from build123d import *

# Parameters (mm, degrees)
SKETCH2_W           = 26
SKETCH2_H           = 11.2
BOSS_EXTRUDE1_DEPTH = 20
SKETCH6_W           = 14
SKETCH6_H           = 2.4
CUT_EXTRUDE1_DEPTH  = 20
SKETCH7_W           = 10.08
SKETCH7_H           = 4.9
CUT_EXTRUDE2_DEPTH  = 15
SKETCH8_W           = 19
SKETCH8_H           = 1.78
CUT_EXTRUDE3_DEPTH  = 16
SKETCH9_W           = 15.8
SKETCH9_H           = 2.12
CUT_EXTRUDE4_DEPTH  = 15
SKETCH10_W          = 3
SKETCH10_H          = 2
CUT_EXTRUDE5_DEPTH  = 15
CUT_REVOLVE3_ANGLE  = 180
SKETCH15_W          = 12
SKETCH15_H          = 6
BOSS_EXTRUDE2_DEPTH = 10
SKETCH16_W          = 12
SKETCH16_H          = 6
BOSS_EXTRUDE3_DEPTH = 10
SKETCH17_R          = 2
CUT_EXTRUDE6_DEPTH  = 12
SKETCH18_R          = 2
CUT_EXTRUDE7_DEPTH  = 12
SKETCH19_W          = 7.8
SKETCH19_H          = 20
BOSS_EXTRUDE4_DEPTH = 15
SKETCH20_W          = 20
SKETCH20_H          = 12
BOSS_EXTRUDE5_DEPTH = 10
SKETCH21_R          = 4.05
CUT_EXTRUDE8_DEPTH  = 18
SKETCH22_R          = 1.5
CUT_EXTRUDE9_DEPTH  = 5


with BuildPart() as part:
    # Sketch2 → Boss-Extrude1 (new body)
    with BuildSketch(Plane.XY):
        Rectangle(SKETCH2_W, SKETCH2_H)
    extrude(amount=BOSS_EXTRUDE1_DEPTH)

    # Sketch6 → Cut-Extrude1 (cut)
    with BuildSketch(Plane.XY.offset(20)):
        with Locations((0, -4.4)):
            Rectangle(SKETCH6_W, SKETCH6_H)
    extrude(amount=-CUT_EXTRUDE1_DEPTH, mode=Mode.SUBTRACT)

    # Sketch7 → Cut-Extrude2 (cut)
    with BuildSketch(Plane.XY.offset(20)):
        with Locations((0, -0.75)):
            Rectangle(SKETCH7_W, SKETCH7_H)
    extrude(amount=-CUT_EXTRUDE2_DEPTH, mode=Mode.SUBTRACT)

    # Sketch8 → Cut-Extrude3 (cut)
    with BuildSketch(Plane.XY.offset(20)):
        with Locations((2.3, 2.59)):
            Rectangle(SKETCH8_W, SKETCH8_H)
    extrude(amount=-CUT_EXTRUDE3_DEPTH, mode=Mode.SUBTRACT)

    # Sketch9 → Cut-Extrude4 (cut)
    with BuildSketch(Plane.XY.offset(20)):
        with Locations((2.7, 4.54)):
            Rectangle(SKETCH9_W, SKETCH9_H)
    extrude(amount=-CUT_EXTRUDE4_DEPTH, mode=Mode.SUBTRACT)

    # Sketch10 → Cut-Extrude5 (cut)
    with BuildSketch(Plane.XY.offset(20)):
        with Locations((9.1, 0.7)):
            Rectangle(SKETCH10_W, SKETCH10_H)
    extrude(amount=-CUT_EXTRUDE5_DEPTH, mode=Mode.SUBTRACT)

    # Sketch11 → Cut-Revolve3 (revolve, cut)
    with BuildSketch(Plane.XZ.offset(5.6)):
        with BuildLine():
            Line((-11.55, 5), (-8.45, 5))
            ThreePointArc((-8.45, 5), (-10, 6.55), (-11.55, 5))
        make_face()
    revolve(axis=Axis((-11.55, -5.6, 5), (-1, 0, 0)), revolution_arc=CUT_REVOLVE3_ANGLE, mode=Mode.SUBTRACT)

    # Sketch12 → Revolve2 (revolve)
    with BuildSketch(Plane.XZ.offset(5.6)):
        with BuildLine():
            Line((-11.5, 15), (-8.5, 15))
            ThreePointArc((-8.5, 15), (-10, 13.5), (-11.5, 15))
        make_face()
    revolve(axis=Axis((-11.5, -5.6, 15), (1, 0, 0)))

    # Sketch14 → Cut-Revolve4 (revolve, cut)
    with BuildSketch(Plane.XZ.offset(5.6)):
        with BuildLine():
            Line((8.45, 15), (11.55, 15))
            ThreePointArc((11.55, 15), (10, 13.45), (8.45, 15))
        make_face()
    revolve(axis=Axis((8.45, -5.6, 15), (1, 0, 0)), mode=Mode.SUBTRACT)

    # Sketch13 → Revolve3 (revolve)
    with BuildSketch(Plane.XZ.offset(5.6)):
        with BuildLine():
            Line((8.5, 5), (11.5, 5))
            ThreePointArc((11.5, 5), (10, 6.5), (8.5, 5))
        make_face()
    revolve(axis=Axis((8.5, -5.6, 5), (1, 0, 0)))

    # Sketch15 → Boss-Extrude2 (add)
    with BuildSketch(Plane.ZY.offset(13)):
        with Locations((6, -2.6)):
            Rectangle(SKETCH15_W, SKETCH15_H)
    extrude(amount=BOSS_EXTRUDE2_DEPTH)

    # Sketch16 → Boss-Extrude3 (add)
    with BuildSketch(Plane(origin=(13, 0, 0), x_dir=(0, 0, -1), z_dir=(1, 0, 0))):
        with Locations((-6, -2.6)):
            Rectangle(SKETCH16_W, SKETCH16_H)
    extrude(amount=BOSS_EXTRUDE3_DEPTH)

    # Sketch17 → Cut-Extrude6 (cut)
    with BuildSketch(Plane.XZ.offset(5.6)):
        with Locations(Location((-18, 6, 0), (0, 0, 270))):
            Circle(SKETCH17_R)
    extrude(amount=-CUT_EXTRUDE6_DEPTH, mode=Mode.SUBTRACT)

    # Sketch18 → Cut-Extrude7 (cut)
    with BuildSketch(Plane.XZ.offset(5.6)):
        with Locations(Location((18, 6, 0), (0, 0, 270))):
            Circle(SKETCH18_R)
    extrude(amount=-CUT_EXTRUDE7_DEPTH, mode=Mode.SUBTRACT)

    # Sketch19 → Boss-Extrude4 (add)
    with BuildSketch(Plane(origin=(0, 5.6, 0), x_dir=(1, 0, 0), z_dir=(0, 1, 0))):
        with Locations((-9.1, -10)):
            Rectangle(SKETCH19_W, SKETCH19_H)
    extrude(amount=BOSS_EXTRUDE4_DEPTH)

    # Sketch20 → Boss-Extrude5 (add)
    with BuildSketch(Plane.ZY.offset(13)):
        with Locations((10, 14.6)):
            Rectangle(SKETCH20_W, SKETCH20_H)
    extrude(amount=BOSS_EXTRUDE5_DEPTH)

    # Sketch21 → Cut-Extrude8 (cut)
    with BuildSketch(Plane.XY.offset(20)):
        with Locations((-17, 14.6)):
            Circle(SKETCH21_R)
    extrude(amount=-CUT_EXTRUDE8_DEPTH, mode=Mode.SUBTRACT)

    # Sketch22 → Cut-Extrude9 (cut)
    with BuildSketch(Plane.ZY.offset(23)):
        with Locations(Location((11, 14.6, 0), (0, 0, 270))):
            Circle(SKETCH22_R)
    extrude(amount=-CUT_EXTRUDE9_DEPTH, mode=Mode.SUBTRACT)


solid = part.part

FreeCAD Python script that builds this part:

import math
import FreeCAD as App
import Part
import Sketcher


def add_polygon(sketch, points):
    """Adds a closed chain of lines whose ends are joined by coincident constraints."""
    first, n = sketch.GeometryCount, len(points)
    for a, b in zip(points, points[1:] + points[:1]):
        sketch.addGeometry(Part.LineSegment(App.Vector(*a, 0), App.Vector(*b, 0)), False)
    for i in range(n):
        sketch.addConstraint(Sketcher.Constraint("Coincident", first + i, 2, first + (i + 1) % n, 1))

doc = App.newDocument("Part")
body = doc.addObject("PartDesign::Body", "Body")

# Sketch on XY plane
sketch1 = body.newObject("Sketcher::SketchObject", "Sketch")
sketch1.AttachmentSupport = (doc.getObject("XY_Plane"), [""])
sketch1.MapMode = "FlatFace"
add_polygon(sketch1, [(-13, 5.6), (-13, -5.6), (13, -5.6), (13, 5.6)])  # lines 0-3
sketch1.addConstraint([
    Sketcher.Constraint("Vertical", 0),
    Sketcher.Constraint("Horizontal", 1),
    Sketcher.Constraint("Vertical", 2),
    Sketcher.Constraint("Horizontal", 3),
    Sketcher.Constraint("Symmetric", 0, 2, 2, 2, -1, 1),
    Sketcher.Constraint("DistanceX", 1, 1, 1, 2, 26.0),
    Sketcher.Constraint("DistanceY", 0, 2, 0, 1, 11.2),
])
pad1 = body.newObject("PartDesign::Pad", "Pad")
pad1.Profile = sketch1
pad1.Length = 20

# Sketch on XY plane
sketch2 = body.newObject("Sketcher::SketchObject", "Sketch001")
sketch2.AttachmentSupport = (doc.getObject("XY_Plane"), [""])
sketch2.MapMode = "FlatFace"
sketch2.AttachmentOffset = App.Placement(App.Vector(0, 0, 20), App.Rotation())
add_polygon(sketch2, [(-7, -3.2), (-7, -5.6), (7, -5.6), (7, -3.2)])  # lines 0-3
sketch2.addConstraint([
    Sketcher.Constraint("Vertical", 0),
    Sketcher.Constraint("Horizontal", 1),
    Sketcher.Constraint("Vertical", 2),
    Sketcher.Constraint("Horizontal", 3),
    Sketcher.Constraint("DistanceX", 1, 1, 1, 2, 14.0),
    Sketcher.Constraint("DistanceY", 0, 2, 0, 1, 2.4),
    Sketcher.Constraint("DistanceX", 0, 2, -1, 1, 7.0),
    Sketcher.Constraint("DistanceY", 0, 2, -1, 1, 5.6),
])
pocket1 = body.newObject("PartDesign::Pocket", "Pocket")
pocket1.Profile = sketch2
pocket1.Length = 20

# Sketch on XY plane
sketch3 = body.newObject("Sketcher::SketchObject", "Sketch002")
sketch3.AttachmentSupport = (doc.getObject("XY_Plane"), [""])
sketch3.MapMode = "FlatFace"
sketch3.AttachmentOffset = App.Placement(App.Vector(0, 0, 20), App.Rotation())
add_polygon(sketch3, [(-5.04, 1.7), (-5.04, -3.2), (5.04, -3.2), (5.04, 1.7)])  # lines 0-3
sketch3.addConstraint([
    Sketcher.Constraint("Vertical", 0),
    Sketcher.Constraint("Horizontal", 1),
    Sketcher.Constraint("Vertical", 2),
    Sketcher.Constraint("Horizontal", 3),
    Sketcher.Constraint("DistanceY", 0, 2, 0, 1, 4.9),
    Sketcher.Constraint("DistanceX", 1, 1, 1, 2, 10.08),
    Sketcher.Constraint("DistanceY", 0, 2, -1, 1, 3.2),
    Sketcher.Constraint("DistanceX", 0, 2, -1, 1, 5.04),
])
pocket2 = body.newObject("PartDesign::Pocket", "Pocket001")
pocket2.Profile = sketch3
pocket2.Length = 15

# Sketch on XY plane
sketch4 = body.newObject("Sketcher::SketchObject", "Sketch003")
sketch4.AttachmentSupport = (doc.getObject("XY_Plane"), [""])
sketch4.MapMode = "FlatFace"
sketch4.AttachmentOffset = App.Placement(App.Vector(0, 0, 20), App.Rotation())
add_polygon(sketch4, [(-7.2, 3.48), (-7.2, 1.7), (11.8, 1.7), (11.8, 3.48)])  # lines 0-3
sketch4.addConstraint([
    Sketcher.Constraint("Vertical", 0),
    Sketcher.Constraint("Horizontal", 1),
    Sketcher.Constraint("Vertical", 2),
    Sketcher.Constraint("Horizontal", 3),
    Sketcher.Constraint("DistanceX", 1, 1, 1, 2, 19.0),
    Sketcher.Constraint("DistanceY", 0, 2, 0, 1, 1.78),
    Sketcher.Constraint("DistanceX", 0, 2, -1, 1, 7.2),
    Sketcher.Constraint("DistanceY", -1, 1, 0, 2, 1.7),
])
pocket3 = body.newObject("PartDesign::Pocket", "Pocket002")
pocket3.Profile = sketch4
pocket3.Length = 16

# Sketch on XY plane
sketch5 = body.newObject("Sketcher::SketchObject", "Sketch004")
sketch5.AttachmentSupport = (doc.getObject("XY_Plane"), [""])
sketch5.MapMode = "FlatFace"
sketch5.AttachmentOffset = App.Placement(App.Vector(0, 0, 20), App.Rotation())
add_polygon(sketch5, [(-5.2, 5.6), (-5.2, 3.48), (10.6, 3.48), (10.6, 5.6)])  # lines 0-3
sketch5.addConstraint([
    Sketcher.Constraint("Vertical", 0),
    Sketcher.Constraint("Horizontal", 1),
    Sketcher.Constraint("Vertical", 2),
    Sketcher.Constraint("Horizontal", 3),
    Sketcher.Constraint("DistanceX", 1, 1, 1, 2, 15.8),
    Sketcher.Constraint("DistanceY", 0, 2, 0, 1, 2.12),
    Sketcher.Constraint("DistanceX", 0, 2, -1, 1, 5.2),
    Sketcher.Constraint("DistanceY", -1, 1, 2, 2, 5.6),
])
pocket4 = body.newObject("PartDesign::Pocket", "Pocket003")
pocket4.Profile = sketch5
pocket4.Length = 15

# Sketch on XY plane
sketch6 = body.newObject("Sketcher::SketchObject", "Sketch005")
sketch6.AttachmentSupport = (doc.getObject("XY_Plane"), [""])
sketch6.MapMode = "FlatFace"
sketch6.AttachmentOffset = App.Placement(App.Vector(0, 0, 20), App.Rotation())
add_polygon(sketch6, [(7.6, 1.7), (7.6, -0.3), (10.6, -0.3), (10.6, 1.7)])  # lines 0-3
sketch6.addConstraint([
    Sketcher.Constraint("Vertical", 0),
    Sketcher.Constraint("Horizontal", 1),
    Sketcher.Constraint("Vertical", 2),
    Sketcher.Constraint("Horizontal", 3),
    Sketcher.Constraint("DistanceX", 1, 1, 1, 2, 3.0),
    Sketcher.Constraint("DistanceY", 0, 2, 0, 1, 2.0),
    Sketcher.Constraint("DistanceX", -1, 1, 0, 2, 7.6),
    Sketcher.Constraint("DistanceY", 0, 2, -1, 1, 0.3),
])
pocket5 = body.newObject("PartDesign::Pocket", "Pocket004")
pocket5.Profile = sketch6
pocket5.Length = 15

# Sketch on XZ plane
sketch7 = body.newObject("Sketcher::SketchObject", "Sketch006")
sketch7.AttachmentSupport = (doc.getObject("XZ_Plane"), [""])
sketch7.MapMode = "FlatFace"
sketch7.AttachmentOffset = App.Placement(App.Vector(0, 0, 5.6), App.Rotation())
sketch7.addGeometry([
    Part.LineSegment(App.Vector(-11.55, 5, 0), App.Vector(-8.45, 5, 0)),
    Part.ArcOfCircle(Part.Circle(App.Vector(-10, 5, 0), App.Vector(0, 0, 1), 1.55), math.radians(0), math.radians(180)),
], False)
sketch7.addGeometry(Part.LineSegment(App.Vector(-8.45, 5, 0), App.Vector(-11.55, 5, 0)), True)  # axis
sketch7.addConstraint([
    Sketcher.Constraint("Coincident", 0, 1, 1, 2),
    Sketcher.Constraint("Coincident", 1, 1, 0, 2),
    Sketcher.Constraint("Horizontal", 0),
    Sketcher.Constraint("Horizontal", 2),
    Sketcher.Constraint("Coincident", 2, 1, 1, 1),
    Sketcher.Constraint("Horizontal", 1, 3, 0, 1),
    Sketcher.Constraint("Equal", 0, 2),
    Sketcher.Constraint("Radius", 1, 1.55),
    Sketcher.Constraint("DistanceX", 1, 3, -1, 1, 10.0),
    Sketcher.Constraint("DistanceY", -1, 1, 1, 3, 5.0),
])
groove = body.newObject("PartDesign::Groove", "Groove")
groove.Profile = sketch7
groove.ReferenceAxis = (sketch7, ["Axis0"])
groove.Angle = 180

# Sketch on XZ plane
sketch8 = body.newObject("Sketcher::SketchObject", "Sketch007")
sketch8.AttachmentSupport = (doc.getObject("XZ_Plane"), [""])
sketch8.MapMode = "FlatFace"
sketch8.AttachmentOffset = App.Placement(App.Vector(0, 0, 5.6), App.Rotation())
sketch8.addGeometry([
    Part.LineSegment(App.Vector(-8.5, 15, 0), App.Vector(-11.5, 15, 0)),
    Part.ArcOfCircle(Part.Circle(App.Vector(-10, 15, 0), App.Vector(0, 0, 1), 1.5), math.radians(180), math.radians(360)),
], False)
sketch8.addGeometry(Part.LineSegment(App.Vector(-11.5, 15, 0), App.Vector(-8.5, 15, 0)), True)  # axis
sketch8.addConstraint([
    Sketcher.Constraint("Coincident", 0, 1, 1, 2),
    Sketcher.Constraint("Coincident", 1, 1, 0, 2),
    Sketcher.Constraint("Horizontal", 0),
    Sketcher.Constraint("Horizontal", 2),
    Sketcher.Constraint("Coincident", 2, 1, 1, 1),
    Sketcher.Constraint("Horizontal", 1, 3, 0, 1),
    Sketcher.Constraint("Equal", 0, 2),
    Sketcher.Constraint("Radius", 1, 1.5),
    Sketcher.Constraint("DistanceX", 1, 3, -1, 1, 10.0),
    Sketcher.Constraint("DistanceY", -1, 1, 1, 3, 15.0),
])
revolution = body.newObject("PartDesign::Revolution", "Revolution")
revolution.Profile = sketch8
revolution.ReferenceAxis = (sketch8, ["Axis0"])
revolution.Angle = 360

# Sketch on XZ plane
sketch9 = body.newObject("Sketcher::SketchObject", "Sketch008")
sketch9.AttachmentSupport = (doc.getObject("XZ_Plane"), [""])
sketch9.MapMode = "FlatFace"
sketch9.AttachmentOffset = App.Placement(App.Vector(0, 0, 5.6), App.Rotation())
sketch9.addGeometry([
    Part.LineSegment(App.Vector(11.55, 15, 0), App.Vector(8.45, 15, 0)),
    Part.ArcOfCircle(Part.Circle(App.Vector(10, 15, 0), App.Vector(0, 0, 1), 1.55), math.radians(180), math.radians(360)),
], False)
sketch9.addGeometry(Part.LineSegment(App.Vector(8.45, 15, 0), App.Vector(11.55, 15, 0)), True)  # axis
sketch9.addConstraint([
    Sketcher.Constraint("Coincident", 0, 1, 1, 2),
    Sketcher.Constraint("Coincident", 1, 1, 0, 2),
    Sketcher.Constraint("Horizontal", 0),
    Sketcher.Constraint("Horizontal", 2),
    Sketcher.Constraint("Coincident", 2, 1, 1, 1),
    Sketcher.Constraint("Horizontal", 1, 3, 0, 1),
    Sketcher.Constraint("Equal", 0, 2),
    Sketcher.Constraint("Radius", 1, 1.55),
    Sketcher.Constraint("DistanceX", -1, 1, 1, 3, 10.0),
    Sketcher.Constraint("DistanceY", -1, 1, 1, 3, 15.0),
])
groove2 = body.newObject("PartDesign::Groove", "Groove001")
groove2.Profile = sketch9
groove2.ReferenceAxis = (sketch9, ["Axis0"])
groove2.Angle = 360

# Sketch on XZ plane
sketch10 = body.newObject("Sketcher::SketchObject", "Sketch009")
sketch10.AttachmentSupport = (doc.getObject("XZ_Plane"), [""])
sketch10.MapMode = "FlatFace"
sketch10.AttachmentOffset = App.Placement(App.Vector(0, 0, 5.6), App.Rotation())
sketch10.addGeometry([
    Part.LineSegment(App.Vector(8.5, 5, 0), App.Vector(11.5, 5, 0)),
    Part.ArcOfCircle(Part.Circle(App.Vector(10, 5, 0), App.Vector(0, 0, 1), 1.5), math.radians(0), math.radians(180)),
], False)
sketch10.addGeometry(Part.LineSegment(App.Vector(8.5, 5, 0), App.Vector(11.5, 5, 0)), True)  # axis
sketch10.addConstraint([
    Sketcher.Constraint("Coincident", 0, 1, 1, 2),
    Sketcher.Constraint("Coincident", 1, 1, 0, 2),
    Sketcher.Constraint("Horizontal", 0),
    Sketcher.Constraint("Horizontal", 2),
    Sketcher.Constraint("Coincident", 2, 1, 0, 1),
    Sketcher.Constraint("Horizontal", 1, 3, 0, 1),
    Sketcher.Constraint("Equal", 0, 2),
    Sketcher.Constraint("Radius", 1, 1.5),
    Sketcher.Constraint("DistanceX", -1, 1, 1, 3, 10.0),
    Sketcher.Constraint("DistanceY", -1, 1, 1, 3, 5.0),
])
revolution2 = body.newObject("PartDesign::Revolution", "Revolution001")
revolution2.Profile = sketch10
revolution2.ReferenceAxis = (sketch10, ["Axis0"])
revolution2.Angle = 360

# Sketch on YZ plane
sketch11 = body.newObject("Sketcher::SketchObject", "Sketch010")
sketch11.AttachmentSupport = (doc.getObject("YZ_Plane"), [""])
sketch11.MapMode = "FlatFace"
sketch11.AttachmentOffset = App.Placement(App.Vector(0, 0, -13), App.Rotation())
add_polygon(sketch11, [(0.4, 0), (-5.6, 0), (-5.6, 12), (0.4, 12)])  # lines 0-3
sketch11.addConstraint([
    Sketcher.Constraint("Horizontal", 0),
    Sketcher.Constraint("Vertical", 1),
    Sketcher.Constraint("Horizontal", 2),
    Sketcher.Constraint("Vertical", 3),
    Sketcher.Constraint("PointOnObject", 0, 2, -1),
    Sketcher.Constraint("DistanceX", 0, 2, 0, 1, 6.0),
    Sketcher.Constraint("DistanceY", 1, 1, 1, 2, 12.0),
    Sketcher.Constraint("DistanceX", 0, 2, -1, 1, 5.6),
])
pad2 = body.newObject("PartDesign::Pad", "Pad001")
pad2.Profile = sketch11
pad2.Length = 10
pad2.Reversed = True

# Sketch on YZ plane
sketch12 = body.newObject("Sketcher::SketchObject", "Sketch011")
sketch12.AttachmentSupport = (doc.getObject("YZ_Plane"), [""])
sketch12.MapMode = "FlatFace"
sketch12.AttachmentOffset = App.Placement(App.Vector(0, 0, 13), App.Rotation())
add_polygon(sketch12, [(0.4, 12), (-5.6, 12), (-5.6, 0), (0.4, 0)])  # lines 0-3
sketch12.addConstraint([
    Sketcher.Constraint("Horizontal", 0),
    Sketcher.Constraint("Vertical", 1),
    Sketcher.Constraint("Horizontal", 2),
    Sketcher.Constraint("Vertical", 3),
    Sketcher.Constraint("PointOnObject", 1, 2, -1),
    Sketcher.Constraint("DistanceX", 0, 2, 0, 1, 6.0),
    Sketcher.Constraint("DistanceY", 1, 2, 1, 1, 12.0),
    Sketcher.Constraint("DistanceX", 0, 2, -1, 1, 5.6),
])
pad3 = body.newObject("PartDesign::Pad", "Pad002")
pad3.Profile = sketch12
pad3.Length = 10

# Sketch on XZ plane
sketch13 = body.newObject("Sketcher::SketchObject", "Sketch012")
sketch13.AttachmentSupport = (doc.getObject("XZ_Plane"), [""])
sketch13.MapMode = "FlatFace"
sketch13.AttachmentOffset = App.Placement(App.Vector(0, 0, 5.6), App.Rotation())
sketch13.addGeometry(Part.Circle(App.Vector(-18, 6, 0), App.Vector(0, 0, 1), 2), False)
sketch13.addConstraint([
    Sketcher.Constraint("Diameter", 0, 4.0),
    Sketcher.Constraint("DistanceX", 0, 3, -1, 1, 18.0),
    Sketcher.Constraint("DistanceY", -1, 1, 0, 3, 6.0),
])
pocket6 = body.newObject("PartDesign::Pocket", "Pocket005")
pocket6.Profile = sketch13
pocket6.Length = 12

# Sketch on XZ plane
sketch14 = body.newObject("Sketcher::SketchObject", "Sketch013")
sketch14.AttachmentSupport = (doc.getObject("XZ_Plane"), [""])
sketch14.MapMode = "FlatFace"
sketch14.AttachmentOffset = App.Placement(App.Vector(0, 0, 5.6), App.Rotation())
sketch14.addGeometry(Part.Circle(App.Vector(18, 6, 0), App.Vector(0, 0, 1), 2), False)
sketch14.addConstraint([
    Sketcher.Constraint("Diameter", 0, 4.0),
    Sketcher.Constraint("DistanceX", -1, 1, 0, 3, 18.0),
    Sketcher.Constraint("DistanceY", -1, 1, 0, 3, 6.0),
])
pocket7 = body.newObject("PartDesign::Pocket", "Pocket006")
pocket7.Profile = sketch14
pocket7.Length = 12

# Sketch on XZ plane
sketch15 = body.newObject("Sketcher::SketchObject", "Sketch014")
sketch15.AttachmentSupport = (doc.getObject("XZ_Plane"), [""])
sketch15.MapMode = "FlatFace"
sketch15.AttachmentOffset = App.Placement(App.Vector(0, 0, -5.6), App.Rotation())
add_polygon(sketch15, [(-13, 0), (-13, 20), (-5.2, 20), (-5.2, 0)])  # lines 0-3
sketch15.addConstraint([
    Sketcher.Constraint("Vertical", 0),
    Sketcher.Constraint("Horizontal", 1),
    Sketcher.Constraint("Vertical", 2),
    Sketcher.Constraint("Horizontal", 3),
    Sketcher.Constraint("PointOnObject", 2, 2, -1),
    Sketcher.Constraint("DistanceY", 0, 1, 0, 2, 20.0),
    Sketcher.Constraint("DistanceX", 1, 1, 1, 2, 7.8),
    Sketcher.Constraint("DistanceX", 0, 2, -1, 1, 13.0),
])
pad4 = body.newObject("PartDesign::Pad", "Pad003")
pad4.Profile = sketch15
pad4.Length = 15
pad4.Reversed = True

# Sketch on YZ plane
sketch16 = body.newObject("Sketcher::SketchObject", "Sketch015")
sketch16.AttachmentSupport = (doc.getObject("YZ_Plane"), [""])
sketch16.MapMode = "FlatFace"
sketch16.AttachmentOffset = App.Placement(App.Vector(0, 0, -13), App.Rotation())
add_polygon(sketch16, [(20.6, 0), (8.6, 0), (8.6, 20), (20.6, 20)])  # lines 0-3
sketch16.addConstraint([
    Sketcher.Constraint("Horizontal", 0),
    Sketcher.Constraint("Vertical", 1),
    Sketcher.Constraint("Horizontal", 2),
    Sketcher.Constraint("Vertical", 3),
    Sketcher.Constraint("PointOnObject", 0, 2, -1),
    Sketcher.Constraint("DistanceX", 0, 2, 0, 1, 12.0),
    Sketcher.Constraint("DistanceY", 1, 1, 1, 2, 20.0),
    Sketcher.Constraint("DistanceX", -1, 1, 0, 2, 8.6),
])
pad5 = body.newObject("PartDesign::Pad", "Pad004")
pad5.Profile = sketch16
pad5.Length = 10
pad5.Reversed = True

# Sketch on XY plane
sketch17 = body.newObject("Sketcher::SketchObject", "Sketch016")
sketch17.AttachmentSupport = (doc.getObject("XY_Plane"), [""])
sketch17.MapMode = "FlatFace"
sketch17.AttachmentOffset = App.Placement(App.Vector(0, 0, 20), App.Rotation())
sketch17.addGeometry(Part.Circle(App.Vector(-17, 14.6, 0), App.Vector(0, 0, 1), 4.05), False)
sketch17.addConstraint([
    Sketcher.Constraint("Diameter", 0, 8.1),
    Sketcher.Constraint("DistanceX", 0, 3, -1, 1, 17.0),
    Sketcher.Constraint("DistanceY", -1, 1, 0, 3, 14.6),
])
pocket8 = body.newObject("PartDesign::Pocket", "Pocket007")
pocket8.Profile = sketch17
pocket8.Length = 18

# Sketch on YZ plane
sketch18 = body.newObject("Sketcher::SketchObject", "Sketch017")
sketch18.AttachmentSupport = (doc.getObject("YZ_Plane"), [""])
sketch18.MapMode = "FlatFace"
sketch18.AttachmentOffset = App.Placement(App.Vector(0, 0, -23), App.Rotation())
sketch18.addGeometry(Part.Circle(App.Vector(14.6, 11, 0), App.Vector(0, 0, 1), 1.5), False)
sketch18.addConstraint([
    Sketcher.Constraint("Diameter", 0, 3.0),
    Sketcher.Constraint("DistanceY", -1, 1, 0, 3, 11.0),
    Sketcher.Constraint("DistanceX", -1, 1, 0, 3, 14.6),
])
pocket9 = body.newObject("PartDesign::Pocket", "Pocket008")
pocket9.Profile = sketch18
pocket9.Length = 5
pocket9.Reversed = True

doc.recompute()
